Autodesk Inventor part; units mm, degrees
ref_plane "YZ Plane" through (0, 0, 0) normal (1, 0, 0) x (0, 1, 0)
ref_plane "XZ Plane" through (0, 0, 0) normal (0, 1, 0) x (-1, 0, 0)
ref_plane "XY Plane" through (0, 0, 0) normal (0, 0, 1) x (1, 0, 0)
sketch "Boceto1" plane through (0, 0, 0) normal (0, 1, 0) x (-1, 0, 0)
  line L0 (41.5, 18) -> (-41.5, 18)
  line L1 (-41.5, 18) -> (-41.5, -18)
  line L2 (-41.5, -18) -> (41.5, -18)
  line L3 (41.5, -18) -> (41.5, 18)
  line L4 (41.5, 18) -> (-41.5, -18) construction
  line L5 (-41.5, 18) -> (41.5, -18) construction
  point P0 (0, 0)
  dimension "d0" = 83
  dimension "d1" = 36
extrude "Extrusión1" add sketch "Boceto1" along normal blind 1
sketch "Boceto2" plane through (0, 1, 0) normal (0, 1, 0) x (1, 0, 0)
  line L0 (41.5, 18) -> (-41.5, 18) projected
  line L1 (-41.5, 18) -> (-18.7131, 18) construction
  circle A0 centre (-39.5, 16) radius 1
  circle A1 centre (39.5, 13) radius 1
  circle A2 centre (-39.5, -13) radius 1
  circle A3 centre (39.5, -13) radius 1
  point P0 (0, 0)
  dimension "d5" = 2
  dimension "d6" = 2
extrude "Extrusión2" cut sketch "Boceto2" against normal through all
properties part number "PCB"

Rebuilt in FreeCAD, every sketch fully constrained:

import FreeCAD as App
import Part
import Sketcher

V = App.Vector
Q = App.Units.Quantity


def add_polygon(sketch, points):
    """Adds a closed chain of lines whose ends are joined by coincident constraints."""
    first, n = sketch.GeometryCount, len(points)
    for a, b in zip(points, points[1:] + points[:1]):
        sketch.addGeometry(Part.LineSegment(App.Vector(*a, 0), App.Vector(*b, 0)), False)
    for i in range(n):
        sketch.addConstraint(Sketcher.Constraint("Coincident", first + i, 2, first + (i + 1) % n, 1))

doc = App.newDocument("Part")
body = doc.addObject("PartDesign::Body", "Body")

sketch1 = body.newObject("Sketcher::SketchObject", "Sketch")
sketch1.AttachmentSupport = (doc.getObject("XZ_Plane"), [""])
sketch1.MapMode = "FlatFace"
add_polygon(sketch1, [(-42, -18), (-42, 18), (42, 18), (42, -18)])
sketch1.addConstraint([
    Sketcher.Constraint("Vertical", 0),
    Sketcher.Constraint("Horizontal", 1),
    Sketcher.Constraint("Vertical", 2),
    Sketcher.Constraint("Horizontal", 3),
    Sketcher.Constraint("Symmetric", 0, 2, 2, 2, -1, 1),
    Sketcher.Constraint("DistanceX", 1, 1, 1, 2, Q("83 mm")),
    Sketcher.Constraint("DistanceY", 0, 1, 0, 2, Q("36 mm")),
])
pad1 = body.newObject("PartDesign::Pad", "Pad")
pad1.Profile = sketch1
pad1.Length = 1
pad1.Reversed = True

sketch2 = body.newObject("Sketcher::SketchObject", "Sketch001")
sketch2.AttachmentSupport = (doc.getObject("XZ_Plane"), [""])
sketch2.MapMode = "FlatFace"
sketch2.AttachmentOffset = App.Placement(V(0, 0, -1), App.Rotation())
sketch2.addGeometry([
    Part.Circle(V(-39.5, -16, 0), V(0, 0, 1), 1),
    Part.Circle(V(39.5, -13, 0), V(0, 0, 1), 1),
    Part.Circle(V(-39.5, 13, 0), V(0, 0, 1), 1),
    Part.Circle(V(39.5, 13, 0), V(0, 0, 1), 1),
], False)
sketch2.addConstraint([
    Sketcher.Constraint("Equal", 0, 1),
    Sketcher.Constraint("Equal", 1, 2),
    Sketcher.Constraint("Equal", 2, 3),
    Sketcher.Constraint("Symmetric", 1, 3, 2, 3, -1, 1),
    Sketcher.Constraint("Symmetric", 2, 3, 3, 3, -2),
    Sketcher.Constraint("Vertical", 0, 3, 2, 3),
    Sketcher.Constraint("Diameter", 0, Q("2 mm")),
    Sketcher.Constraint("DistanceY", 0, 3, -1, 1, Q("16 mm")),
    Sketcher.Constraint("DistanceY", 1, 3, -1, 1, Q("13 mm")),
    Sketcher.Constraint("DistanceX", 0, 3, 1, 3, Q("79 mm")),
])
pocket1 = body.newObject("PartDesign::Pocket", "Pocket")
pocket1.Profile = sketch2
pocket1.Type = "ThroughAll"
pocket1.Reversed = True

doc.recompute()
